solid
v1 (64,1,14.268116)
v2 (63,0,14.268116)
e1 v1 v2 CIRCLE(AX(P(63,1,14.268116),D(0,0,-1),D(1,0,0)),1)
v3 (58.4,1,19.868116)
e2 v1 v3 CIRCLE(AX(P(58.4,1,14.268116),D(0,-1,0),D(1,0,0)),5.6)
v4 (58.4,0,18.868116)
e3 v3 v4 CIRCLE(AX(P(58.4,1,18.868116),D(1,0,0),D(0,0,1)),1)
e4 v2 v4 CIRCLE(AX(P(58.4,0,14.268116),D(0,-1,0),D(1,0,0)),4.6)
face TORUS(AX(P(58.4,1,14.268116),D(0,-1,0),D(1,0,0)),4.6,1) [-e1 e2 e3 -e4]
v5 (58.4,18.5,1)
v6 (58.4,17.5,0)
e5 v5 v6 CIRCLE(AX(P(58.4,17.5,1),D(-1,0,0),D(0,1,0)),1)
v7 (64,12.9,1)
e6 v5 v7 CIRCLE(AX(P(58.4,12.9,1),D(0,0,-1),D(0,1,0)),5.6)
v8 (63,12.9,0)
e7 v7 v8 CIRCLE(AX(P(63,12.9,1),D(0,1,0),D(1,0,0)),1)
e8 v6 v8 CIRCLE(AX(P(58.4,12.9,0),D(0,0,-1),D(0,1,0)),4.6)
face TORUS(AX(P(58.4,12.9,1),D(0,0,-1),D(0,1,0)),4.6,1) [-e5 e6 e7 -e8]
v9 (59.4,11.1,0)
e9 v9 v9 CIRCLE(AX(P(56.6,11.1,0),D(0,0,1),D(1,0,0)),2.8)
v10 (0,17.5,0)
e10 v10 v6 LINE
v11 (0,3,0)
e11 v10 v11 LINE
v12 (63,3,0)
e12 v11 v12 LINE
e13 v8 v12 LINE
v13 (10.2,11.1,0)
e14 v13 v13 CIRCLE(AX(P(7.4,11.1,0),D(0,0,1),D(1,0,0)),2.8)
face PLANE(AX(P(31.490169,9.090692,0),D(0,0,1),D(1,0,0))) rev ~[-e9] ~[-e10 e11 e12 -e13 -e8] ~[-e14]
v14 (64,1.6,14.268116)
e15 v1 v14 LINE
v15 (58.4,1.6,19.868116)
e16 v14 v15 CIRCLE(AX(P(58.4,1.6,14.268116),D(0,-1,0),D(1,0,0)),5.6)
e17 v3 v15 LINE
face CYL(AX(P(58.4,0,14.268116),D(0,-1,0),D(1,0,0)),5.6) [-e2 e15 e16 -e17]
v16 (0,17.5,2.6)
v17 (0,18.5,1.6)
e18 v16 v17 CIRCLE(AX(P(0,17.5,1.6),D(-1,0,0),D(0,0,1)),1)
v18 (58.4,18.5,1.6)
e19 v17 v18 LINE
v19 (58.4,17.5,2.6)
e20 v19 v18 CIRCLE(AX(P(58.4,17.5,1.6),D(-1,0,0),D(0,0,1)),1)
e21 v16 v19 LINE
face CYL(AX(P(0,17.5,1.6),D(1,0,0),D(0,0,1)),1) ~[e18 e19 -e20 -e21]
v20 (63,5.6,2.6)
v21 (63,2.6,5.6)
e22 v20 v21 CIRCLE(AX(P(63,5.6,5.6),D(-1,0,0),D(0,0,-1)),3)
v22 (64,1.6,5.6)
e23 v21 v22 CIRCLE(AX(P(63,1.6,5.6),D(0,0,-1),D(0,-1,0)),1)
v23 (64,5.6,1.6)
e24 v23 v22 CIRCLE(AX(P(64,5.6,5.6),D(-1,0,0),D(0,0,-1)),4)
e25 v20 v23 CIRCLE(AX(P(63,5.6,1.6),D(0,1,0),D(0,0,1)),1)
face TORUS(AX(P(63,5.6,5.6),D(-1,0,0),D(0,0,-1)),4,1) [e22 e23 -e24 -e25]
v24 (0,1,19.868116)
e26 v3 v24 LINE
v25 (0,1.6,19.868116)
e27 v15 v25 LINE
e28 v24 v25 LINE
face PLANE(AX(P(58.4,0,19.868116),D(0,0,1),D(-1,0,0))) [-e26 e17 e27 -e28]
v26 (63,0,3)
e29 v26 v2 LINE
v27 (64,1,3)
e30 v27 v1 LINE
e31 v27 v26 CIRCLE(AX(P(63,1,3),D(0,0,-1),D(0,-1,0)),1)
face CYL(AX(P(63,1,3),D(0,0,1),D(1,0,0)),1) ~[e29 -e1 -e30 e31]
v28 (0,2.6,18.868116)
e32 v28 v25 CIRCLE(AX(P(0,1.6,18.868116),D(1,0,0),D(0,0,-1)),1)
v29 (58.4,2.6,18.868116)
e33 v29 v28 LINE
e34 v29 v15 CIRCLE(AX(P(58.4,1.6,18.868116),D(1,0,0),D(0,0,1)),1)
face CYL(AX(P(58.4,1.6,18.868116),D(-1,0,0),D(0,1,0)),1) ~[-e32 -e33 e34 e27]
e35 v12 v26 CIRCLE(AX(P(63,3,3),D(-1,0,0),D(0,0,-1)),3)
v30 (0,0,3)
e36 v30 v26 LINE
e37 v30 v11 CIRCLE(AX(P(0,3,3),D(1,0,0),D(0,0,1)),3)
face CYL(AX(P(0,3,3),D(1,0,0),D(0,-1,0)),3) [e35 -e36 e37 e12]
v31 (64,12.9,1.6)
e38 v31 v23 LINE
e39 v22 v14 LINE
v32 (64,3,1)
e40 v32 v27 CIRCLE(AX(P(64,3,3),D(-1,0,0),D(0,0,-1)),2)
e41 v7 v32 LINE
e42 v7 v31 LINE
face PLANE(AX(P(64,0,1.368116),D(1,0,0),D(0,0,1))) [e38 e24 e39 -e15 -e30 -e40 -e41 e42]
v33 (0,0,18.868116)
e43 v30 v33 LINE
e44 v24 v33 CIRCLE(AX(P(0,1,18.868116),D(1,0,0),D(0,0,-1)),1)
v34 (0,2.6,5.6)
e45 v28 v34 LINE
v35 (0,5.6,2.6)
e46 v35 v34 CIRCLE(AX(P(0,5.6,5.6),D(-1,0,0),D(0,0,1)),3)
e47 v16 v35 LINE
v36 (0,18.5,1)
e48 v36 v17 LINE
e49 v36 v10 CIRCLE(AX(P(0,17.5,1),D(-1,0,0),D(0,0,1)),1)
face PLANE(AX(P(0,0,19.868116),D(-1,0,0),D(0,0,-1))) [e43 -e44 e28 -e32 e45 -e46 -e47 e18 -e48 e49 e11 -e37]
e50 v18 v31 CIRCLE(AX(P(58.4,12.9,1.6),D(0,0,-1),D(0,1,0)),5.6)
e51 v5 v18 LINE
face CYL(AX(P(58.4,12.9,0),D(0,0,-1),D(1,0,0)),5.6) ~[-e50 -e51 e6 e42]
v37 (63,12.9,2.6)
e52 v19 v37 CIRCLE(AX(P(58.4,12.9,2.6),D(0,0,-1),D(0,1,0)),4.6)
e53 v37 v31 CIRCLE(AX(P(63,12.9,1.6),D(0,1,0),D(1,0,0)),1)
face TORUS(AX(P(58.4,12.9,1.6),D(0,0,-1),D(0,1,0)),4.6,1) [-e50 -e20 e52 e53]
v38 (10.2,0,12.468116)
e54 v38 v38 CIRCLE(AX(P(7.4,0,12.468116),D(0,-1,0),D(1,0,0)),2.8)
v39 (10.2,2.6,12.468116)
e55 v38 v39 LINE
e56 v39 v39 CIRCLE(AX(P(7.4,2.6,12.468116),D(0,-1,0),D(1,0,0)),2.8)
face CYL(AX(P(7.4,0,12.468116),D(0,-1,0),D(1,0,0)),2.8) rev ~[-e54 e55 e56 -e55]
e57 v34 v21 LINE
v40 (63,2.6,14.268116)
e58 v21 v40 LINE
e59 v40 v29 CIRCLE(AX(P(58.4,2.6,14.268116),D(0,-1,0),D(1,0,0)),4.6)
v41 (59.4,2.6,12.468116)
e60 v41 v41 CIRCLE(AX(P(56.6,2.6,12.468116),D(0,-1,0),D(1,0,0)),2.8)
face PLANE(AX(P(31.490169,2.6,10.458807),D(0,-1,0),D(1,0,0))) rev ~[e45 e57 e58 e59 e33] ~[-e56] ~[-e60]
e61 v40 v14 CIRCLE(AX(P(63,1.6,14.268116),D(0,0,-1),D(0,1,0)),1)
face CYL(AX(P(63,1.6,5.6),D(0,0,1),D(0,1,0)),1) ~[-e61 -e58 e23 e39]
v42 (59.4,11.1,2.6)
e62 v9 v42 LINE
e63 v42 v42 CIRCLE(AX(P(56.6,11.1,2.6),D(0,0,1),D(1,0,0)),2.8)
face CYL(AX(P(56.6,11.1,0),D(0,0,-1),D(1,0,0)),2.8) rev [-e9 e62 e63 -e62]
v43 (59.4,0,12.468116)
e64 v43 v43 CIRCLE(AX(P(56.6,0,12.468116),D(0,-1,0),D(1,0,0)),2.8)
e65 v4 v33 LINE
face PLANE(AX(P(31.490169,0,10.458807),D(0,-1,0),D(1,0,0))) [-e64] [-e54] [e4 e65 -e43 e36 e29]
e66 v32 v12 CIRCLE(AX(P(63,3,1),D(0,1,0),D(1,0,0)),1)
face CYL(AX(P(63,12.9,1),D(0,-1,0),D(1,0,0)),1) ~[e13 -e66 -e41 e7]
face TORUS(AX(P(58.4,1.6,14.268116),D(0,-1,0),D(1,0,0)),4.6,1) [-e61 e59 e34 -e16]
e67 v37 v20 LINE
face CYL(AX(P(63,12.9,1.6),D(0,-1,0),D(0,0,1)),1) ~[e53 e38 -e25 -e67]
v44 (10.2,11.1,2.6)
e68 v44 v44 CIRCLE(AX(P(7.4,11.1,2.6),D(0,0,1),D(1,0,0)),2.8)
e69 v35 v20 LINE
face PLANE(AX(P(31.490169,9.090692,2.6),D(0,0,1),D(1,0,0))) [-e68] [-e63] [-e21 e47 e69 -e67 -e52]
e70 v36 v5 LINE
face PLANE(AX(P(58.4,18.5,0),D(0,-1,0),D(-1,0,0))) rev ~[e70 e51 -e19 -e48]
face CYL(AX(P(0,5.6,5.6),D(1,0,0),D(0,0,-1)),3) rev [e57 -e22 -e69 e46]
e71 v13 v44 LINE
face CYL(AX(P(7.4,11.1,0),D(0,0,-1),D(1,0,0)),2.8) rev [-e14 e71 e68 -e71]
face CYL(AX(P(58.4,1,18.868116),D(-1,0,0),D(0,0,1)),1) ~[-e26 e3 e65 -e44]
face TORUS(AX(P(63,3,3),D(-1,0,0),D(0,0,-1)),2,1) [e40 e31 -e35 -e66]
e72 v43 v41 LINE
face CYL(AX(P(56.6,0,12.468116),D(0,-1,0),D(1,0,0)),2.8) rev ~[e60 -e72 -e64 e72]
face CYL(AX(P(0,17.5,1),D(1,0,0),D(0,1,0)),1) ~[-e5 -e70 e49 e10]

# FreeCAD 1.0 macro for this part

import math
import FreeCAD as App
import Part
import Sketcher
from FreeCAD import Vector


def edges_at(feature, points):
    """Names of the edges that pass closest to the given points."""
    edges = feature.Shape.Edges
    near = lambda p: min(range(len(edges)), key=lambda i: edges[i].distToShape(Part.Vertex(*p))[0])
    return sorted({f"Edge{near(p) + 1}" for p in points})

doc = App.newDocument("Part")
body = doc.addObject("PartDesign::Body", "Body")

sketch1 = body.newObject("Sketcher::SketchObject", "Sketch")
sketch1.AttachmentSupport = (doc.getObject("XY_Plane"), [""])
sketch1.MapMode = "FlatFace"
sketch1.addGeometry([
    Part.LineSegment(Vector(0, 18.5, 0), Vector(0, 0, 0)),
    Part.LineSegment(Vector(0, 0, 0), Vector(64, 0, 0)),
    Part.LineSegment(Vector(64, 0, 0), Vector(64, 12.9, 0)),
    Part.ArcOfCircle(Part.Circle(Vector(58.4, 12.9, 0), Vector(0, 0, 1), 5.6), math.radians(0), math.radians(90)),
    Part.LineSegment(Vector(58.4, 18.5, 0), Vector(0, 18.5, 0)),
    Part.Circle(Vector(7.4, 11.1, 0), Vector(0, 0, 1), 2.8),
    Part.Circle(Vector(56.6, 11.1, 0), Vector(0, 0, 1), 2.8),
], False)
sketch1.addConstraint([
    Sketcher.Constraint("Coincident", 0, 2, 1, 1),
    Sketcher.Constraint("Coincident", 1, 2, 2, 1),
    Sketcher.Constraint("Tangent", 2, 2, 3, 1),
    Sketcher.Constraint("Tangent", 3, 2, 4, 1),
    Sketcher.Constraint("Coincident", 4, 2, 0, 1),
    Sketcher.Constraint("Vertical", 0),
    Sketcher.Constraint("Horizontal", 1),
    Sketcher.Constraint("Vertical", 2),
    Sketcher.Constraint("Horizontal", 4),
    Sketcher.Constraint("Coincident", 0, 2, -1, 1),
    Sketcher.Constraint("Equal", 5, 6),
    Sketcher.Constraint("Horizontal", 5, 3, 6, 3),
    Sketcher.Constraint("Diameter", 5, 5.6),
    Sketcher.Constraint("Radius", 3, 5.6),
    Sketcher.Constraint("DistanceX", 1, 1, 1, 2, 64.0),
    Sketcher.Constraint("DistanceY", 0, 2, 0, 1, 18.5),
    Sketcher.Constraint("DistanceX", 5, 3, 3, 3, 51.0),
    Sketcher.Constraint("DistanceY", -1, 1, 5, 3, 11.1),
    Sketcher.Constraint("DistanceX", -1, 1, 6, 3, 56.6),
])
pad1 = body.newObject("PartDesign::Pad", "Pad")
pad1.Profile = sketch1
pad1.Length = 2.6

sketch2 = body.newObject("Sketcher::SketchObject", "Sketch001")
sketch2.AttachmentSupport = (doc.getObject("XZ_Plane"), [""])
sketch2.MapMode = "FlatFace"
sketch2.addGeometry([
    Part.LineSegment(Vector(0, 19.9, 0), Vector(0, 1.4, 0)),
    Part.LineSegment(Vector(0, 1.4, 0), Vector(64, 1.4, 0)),
    Part.LineSegment(Vector(64, 1.4, 0), Vector(64, 14.3, 0)),
    Part.ArcOfCircle(Part.Circle(Vector(58.4, 14.3, 0), Vector(0, 0, 1), 5.6), math.radians(0), math.radians(90)),
    Part.LineSegment(Vector(58.4, 19.9, 0), Vector(0, 19.9, 0)),
    Part.Circle(Vector(7.4, 12.5, 0), Vector(0, 0, 1), 2.8),
    Part.Circle(Vector(56.6, 12.5, 0), Vector(0, 0, 1), 2.8),
], False)
sketch2.addConstraint([
    Sketcher.Constraint("Coincident", 0, 2, 1, 1),
    Sketcher.Constraint("Coincident", 1, 2, 2, 1),
    Sketcher.Constraint("Tangent", 2, 2, 3, 1),
    Sketcher.Constraint("Tangent", 3, 2, 4, 1),
    Sketcher.Constraint("Coincident", 4, 2, 0, 1),
    Sketcher.Constraint("Vertical", 0),
    Sketcher.Constraint("Horizontal", 1),
    Sketcher.Constraint("Vertical", 2),
    Sketcher.Constraint("Horizontal", 4),
    Sketcher.Constraint("Equal", 5, 6),
    Sketcher.Constraint("PointOnObject", 0, 2, -2),
    Sketcher.Constraint("Horizontal", 5, 3, 6, 3),
    Sketcher.Constraint("Diameter", 5, 5.6),
    Sketcher.Constraint("Radius", 3, 5.6),
    Sketcher.Constraint("DistanceX", 1, 1, 1, 2, 64.0),
    Sketcher.Constraint("DistanceY", 0, 2, 0, 1, 18.5),
    Sketcher.Constraint("DistanceX", 5, 3, 3, 3, 51.0),
    Sketcher.Constraint("DistanceX", -1, 1, 6, 3, 56.6),
    Sketcher.Constraint("DistanceY", 5, 3, 3, 3, 1.8),
    Sketcher.Constraint("DistanceY", -1, 1, 3, 3, 14.268116),
])
pad2 = body.newObject("PartDesign::Pad", "Pad001")
pad2.Profile = sketch2
pad2.Length = 2.6
pad2.Reversed = True
doc.recompute()

fillet = body.newObject("PartDesign::Fillet", "Fillet")
fillet.Base = (pad2, edges_at(pad2, [(32, 0, 0), (32, 2.6, 2.6)]))
fillet.Radius = 3
doc.recompute()

fillet2 = body.newObject("PartDesign::Fillet", "Fillet001")
fillet2.Base = (fillet, edges_at(fillet, [
    (29.2, 2.6, 19.868),
    (29.2, 0, 19.868),
    (29.2, 18.5, 2.6),
    (29.2, 18.5, 0),
    (64, 0, 8.634),
    (64, 0.879, 0.879),
    (64, 7.95, 0),
    (64, 9.25, 2.6),
    (64, 2.6, 9.934),
    (62.36, 2.6, 18.228),
    (62.36, 0, 18.228),
    (62.36, 16.86, 2.6),
    (62.36, 16.86, 0),
]))
fillet2.Radius = 1

doc.recompute()
